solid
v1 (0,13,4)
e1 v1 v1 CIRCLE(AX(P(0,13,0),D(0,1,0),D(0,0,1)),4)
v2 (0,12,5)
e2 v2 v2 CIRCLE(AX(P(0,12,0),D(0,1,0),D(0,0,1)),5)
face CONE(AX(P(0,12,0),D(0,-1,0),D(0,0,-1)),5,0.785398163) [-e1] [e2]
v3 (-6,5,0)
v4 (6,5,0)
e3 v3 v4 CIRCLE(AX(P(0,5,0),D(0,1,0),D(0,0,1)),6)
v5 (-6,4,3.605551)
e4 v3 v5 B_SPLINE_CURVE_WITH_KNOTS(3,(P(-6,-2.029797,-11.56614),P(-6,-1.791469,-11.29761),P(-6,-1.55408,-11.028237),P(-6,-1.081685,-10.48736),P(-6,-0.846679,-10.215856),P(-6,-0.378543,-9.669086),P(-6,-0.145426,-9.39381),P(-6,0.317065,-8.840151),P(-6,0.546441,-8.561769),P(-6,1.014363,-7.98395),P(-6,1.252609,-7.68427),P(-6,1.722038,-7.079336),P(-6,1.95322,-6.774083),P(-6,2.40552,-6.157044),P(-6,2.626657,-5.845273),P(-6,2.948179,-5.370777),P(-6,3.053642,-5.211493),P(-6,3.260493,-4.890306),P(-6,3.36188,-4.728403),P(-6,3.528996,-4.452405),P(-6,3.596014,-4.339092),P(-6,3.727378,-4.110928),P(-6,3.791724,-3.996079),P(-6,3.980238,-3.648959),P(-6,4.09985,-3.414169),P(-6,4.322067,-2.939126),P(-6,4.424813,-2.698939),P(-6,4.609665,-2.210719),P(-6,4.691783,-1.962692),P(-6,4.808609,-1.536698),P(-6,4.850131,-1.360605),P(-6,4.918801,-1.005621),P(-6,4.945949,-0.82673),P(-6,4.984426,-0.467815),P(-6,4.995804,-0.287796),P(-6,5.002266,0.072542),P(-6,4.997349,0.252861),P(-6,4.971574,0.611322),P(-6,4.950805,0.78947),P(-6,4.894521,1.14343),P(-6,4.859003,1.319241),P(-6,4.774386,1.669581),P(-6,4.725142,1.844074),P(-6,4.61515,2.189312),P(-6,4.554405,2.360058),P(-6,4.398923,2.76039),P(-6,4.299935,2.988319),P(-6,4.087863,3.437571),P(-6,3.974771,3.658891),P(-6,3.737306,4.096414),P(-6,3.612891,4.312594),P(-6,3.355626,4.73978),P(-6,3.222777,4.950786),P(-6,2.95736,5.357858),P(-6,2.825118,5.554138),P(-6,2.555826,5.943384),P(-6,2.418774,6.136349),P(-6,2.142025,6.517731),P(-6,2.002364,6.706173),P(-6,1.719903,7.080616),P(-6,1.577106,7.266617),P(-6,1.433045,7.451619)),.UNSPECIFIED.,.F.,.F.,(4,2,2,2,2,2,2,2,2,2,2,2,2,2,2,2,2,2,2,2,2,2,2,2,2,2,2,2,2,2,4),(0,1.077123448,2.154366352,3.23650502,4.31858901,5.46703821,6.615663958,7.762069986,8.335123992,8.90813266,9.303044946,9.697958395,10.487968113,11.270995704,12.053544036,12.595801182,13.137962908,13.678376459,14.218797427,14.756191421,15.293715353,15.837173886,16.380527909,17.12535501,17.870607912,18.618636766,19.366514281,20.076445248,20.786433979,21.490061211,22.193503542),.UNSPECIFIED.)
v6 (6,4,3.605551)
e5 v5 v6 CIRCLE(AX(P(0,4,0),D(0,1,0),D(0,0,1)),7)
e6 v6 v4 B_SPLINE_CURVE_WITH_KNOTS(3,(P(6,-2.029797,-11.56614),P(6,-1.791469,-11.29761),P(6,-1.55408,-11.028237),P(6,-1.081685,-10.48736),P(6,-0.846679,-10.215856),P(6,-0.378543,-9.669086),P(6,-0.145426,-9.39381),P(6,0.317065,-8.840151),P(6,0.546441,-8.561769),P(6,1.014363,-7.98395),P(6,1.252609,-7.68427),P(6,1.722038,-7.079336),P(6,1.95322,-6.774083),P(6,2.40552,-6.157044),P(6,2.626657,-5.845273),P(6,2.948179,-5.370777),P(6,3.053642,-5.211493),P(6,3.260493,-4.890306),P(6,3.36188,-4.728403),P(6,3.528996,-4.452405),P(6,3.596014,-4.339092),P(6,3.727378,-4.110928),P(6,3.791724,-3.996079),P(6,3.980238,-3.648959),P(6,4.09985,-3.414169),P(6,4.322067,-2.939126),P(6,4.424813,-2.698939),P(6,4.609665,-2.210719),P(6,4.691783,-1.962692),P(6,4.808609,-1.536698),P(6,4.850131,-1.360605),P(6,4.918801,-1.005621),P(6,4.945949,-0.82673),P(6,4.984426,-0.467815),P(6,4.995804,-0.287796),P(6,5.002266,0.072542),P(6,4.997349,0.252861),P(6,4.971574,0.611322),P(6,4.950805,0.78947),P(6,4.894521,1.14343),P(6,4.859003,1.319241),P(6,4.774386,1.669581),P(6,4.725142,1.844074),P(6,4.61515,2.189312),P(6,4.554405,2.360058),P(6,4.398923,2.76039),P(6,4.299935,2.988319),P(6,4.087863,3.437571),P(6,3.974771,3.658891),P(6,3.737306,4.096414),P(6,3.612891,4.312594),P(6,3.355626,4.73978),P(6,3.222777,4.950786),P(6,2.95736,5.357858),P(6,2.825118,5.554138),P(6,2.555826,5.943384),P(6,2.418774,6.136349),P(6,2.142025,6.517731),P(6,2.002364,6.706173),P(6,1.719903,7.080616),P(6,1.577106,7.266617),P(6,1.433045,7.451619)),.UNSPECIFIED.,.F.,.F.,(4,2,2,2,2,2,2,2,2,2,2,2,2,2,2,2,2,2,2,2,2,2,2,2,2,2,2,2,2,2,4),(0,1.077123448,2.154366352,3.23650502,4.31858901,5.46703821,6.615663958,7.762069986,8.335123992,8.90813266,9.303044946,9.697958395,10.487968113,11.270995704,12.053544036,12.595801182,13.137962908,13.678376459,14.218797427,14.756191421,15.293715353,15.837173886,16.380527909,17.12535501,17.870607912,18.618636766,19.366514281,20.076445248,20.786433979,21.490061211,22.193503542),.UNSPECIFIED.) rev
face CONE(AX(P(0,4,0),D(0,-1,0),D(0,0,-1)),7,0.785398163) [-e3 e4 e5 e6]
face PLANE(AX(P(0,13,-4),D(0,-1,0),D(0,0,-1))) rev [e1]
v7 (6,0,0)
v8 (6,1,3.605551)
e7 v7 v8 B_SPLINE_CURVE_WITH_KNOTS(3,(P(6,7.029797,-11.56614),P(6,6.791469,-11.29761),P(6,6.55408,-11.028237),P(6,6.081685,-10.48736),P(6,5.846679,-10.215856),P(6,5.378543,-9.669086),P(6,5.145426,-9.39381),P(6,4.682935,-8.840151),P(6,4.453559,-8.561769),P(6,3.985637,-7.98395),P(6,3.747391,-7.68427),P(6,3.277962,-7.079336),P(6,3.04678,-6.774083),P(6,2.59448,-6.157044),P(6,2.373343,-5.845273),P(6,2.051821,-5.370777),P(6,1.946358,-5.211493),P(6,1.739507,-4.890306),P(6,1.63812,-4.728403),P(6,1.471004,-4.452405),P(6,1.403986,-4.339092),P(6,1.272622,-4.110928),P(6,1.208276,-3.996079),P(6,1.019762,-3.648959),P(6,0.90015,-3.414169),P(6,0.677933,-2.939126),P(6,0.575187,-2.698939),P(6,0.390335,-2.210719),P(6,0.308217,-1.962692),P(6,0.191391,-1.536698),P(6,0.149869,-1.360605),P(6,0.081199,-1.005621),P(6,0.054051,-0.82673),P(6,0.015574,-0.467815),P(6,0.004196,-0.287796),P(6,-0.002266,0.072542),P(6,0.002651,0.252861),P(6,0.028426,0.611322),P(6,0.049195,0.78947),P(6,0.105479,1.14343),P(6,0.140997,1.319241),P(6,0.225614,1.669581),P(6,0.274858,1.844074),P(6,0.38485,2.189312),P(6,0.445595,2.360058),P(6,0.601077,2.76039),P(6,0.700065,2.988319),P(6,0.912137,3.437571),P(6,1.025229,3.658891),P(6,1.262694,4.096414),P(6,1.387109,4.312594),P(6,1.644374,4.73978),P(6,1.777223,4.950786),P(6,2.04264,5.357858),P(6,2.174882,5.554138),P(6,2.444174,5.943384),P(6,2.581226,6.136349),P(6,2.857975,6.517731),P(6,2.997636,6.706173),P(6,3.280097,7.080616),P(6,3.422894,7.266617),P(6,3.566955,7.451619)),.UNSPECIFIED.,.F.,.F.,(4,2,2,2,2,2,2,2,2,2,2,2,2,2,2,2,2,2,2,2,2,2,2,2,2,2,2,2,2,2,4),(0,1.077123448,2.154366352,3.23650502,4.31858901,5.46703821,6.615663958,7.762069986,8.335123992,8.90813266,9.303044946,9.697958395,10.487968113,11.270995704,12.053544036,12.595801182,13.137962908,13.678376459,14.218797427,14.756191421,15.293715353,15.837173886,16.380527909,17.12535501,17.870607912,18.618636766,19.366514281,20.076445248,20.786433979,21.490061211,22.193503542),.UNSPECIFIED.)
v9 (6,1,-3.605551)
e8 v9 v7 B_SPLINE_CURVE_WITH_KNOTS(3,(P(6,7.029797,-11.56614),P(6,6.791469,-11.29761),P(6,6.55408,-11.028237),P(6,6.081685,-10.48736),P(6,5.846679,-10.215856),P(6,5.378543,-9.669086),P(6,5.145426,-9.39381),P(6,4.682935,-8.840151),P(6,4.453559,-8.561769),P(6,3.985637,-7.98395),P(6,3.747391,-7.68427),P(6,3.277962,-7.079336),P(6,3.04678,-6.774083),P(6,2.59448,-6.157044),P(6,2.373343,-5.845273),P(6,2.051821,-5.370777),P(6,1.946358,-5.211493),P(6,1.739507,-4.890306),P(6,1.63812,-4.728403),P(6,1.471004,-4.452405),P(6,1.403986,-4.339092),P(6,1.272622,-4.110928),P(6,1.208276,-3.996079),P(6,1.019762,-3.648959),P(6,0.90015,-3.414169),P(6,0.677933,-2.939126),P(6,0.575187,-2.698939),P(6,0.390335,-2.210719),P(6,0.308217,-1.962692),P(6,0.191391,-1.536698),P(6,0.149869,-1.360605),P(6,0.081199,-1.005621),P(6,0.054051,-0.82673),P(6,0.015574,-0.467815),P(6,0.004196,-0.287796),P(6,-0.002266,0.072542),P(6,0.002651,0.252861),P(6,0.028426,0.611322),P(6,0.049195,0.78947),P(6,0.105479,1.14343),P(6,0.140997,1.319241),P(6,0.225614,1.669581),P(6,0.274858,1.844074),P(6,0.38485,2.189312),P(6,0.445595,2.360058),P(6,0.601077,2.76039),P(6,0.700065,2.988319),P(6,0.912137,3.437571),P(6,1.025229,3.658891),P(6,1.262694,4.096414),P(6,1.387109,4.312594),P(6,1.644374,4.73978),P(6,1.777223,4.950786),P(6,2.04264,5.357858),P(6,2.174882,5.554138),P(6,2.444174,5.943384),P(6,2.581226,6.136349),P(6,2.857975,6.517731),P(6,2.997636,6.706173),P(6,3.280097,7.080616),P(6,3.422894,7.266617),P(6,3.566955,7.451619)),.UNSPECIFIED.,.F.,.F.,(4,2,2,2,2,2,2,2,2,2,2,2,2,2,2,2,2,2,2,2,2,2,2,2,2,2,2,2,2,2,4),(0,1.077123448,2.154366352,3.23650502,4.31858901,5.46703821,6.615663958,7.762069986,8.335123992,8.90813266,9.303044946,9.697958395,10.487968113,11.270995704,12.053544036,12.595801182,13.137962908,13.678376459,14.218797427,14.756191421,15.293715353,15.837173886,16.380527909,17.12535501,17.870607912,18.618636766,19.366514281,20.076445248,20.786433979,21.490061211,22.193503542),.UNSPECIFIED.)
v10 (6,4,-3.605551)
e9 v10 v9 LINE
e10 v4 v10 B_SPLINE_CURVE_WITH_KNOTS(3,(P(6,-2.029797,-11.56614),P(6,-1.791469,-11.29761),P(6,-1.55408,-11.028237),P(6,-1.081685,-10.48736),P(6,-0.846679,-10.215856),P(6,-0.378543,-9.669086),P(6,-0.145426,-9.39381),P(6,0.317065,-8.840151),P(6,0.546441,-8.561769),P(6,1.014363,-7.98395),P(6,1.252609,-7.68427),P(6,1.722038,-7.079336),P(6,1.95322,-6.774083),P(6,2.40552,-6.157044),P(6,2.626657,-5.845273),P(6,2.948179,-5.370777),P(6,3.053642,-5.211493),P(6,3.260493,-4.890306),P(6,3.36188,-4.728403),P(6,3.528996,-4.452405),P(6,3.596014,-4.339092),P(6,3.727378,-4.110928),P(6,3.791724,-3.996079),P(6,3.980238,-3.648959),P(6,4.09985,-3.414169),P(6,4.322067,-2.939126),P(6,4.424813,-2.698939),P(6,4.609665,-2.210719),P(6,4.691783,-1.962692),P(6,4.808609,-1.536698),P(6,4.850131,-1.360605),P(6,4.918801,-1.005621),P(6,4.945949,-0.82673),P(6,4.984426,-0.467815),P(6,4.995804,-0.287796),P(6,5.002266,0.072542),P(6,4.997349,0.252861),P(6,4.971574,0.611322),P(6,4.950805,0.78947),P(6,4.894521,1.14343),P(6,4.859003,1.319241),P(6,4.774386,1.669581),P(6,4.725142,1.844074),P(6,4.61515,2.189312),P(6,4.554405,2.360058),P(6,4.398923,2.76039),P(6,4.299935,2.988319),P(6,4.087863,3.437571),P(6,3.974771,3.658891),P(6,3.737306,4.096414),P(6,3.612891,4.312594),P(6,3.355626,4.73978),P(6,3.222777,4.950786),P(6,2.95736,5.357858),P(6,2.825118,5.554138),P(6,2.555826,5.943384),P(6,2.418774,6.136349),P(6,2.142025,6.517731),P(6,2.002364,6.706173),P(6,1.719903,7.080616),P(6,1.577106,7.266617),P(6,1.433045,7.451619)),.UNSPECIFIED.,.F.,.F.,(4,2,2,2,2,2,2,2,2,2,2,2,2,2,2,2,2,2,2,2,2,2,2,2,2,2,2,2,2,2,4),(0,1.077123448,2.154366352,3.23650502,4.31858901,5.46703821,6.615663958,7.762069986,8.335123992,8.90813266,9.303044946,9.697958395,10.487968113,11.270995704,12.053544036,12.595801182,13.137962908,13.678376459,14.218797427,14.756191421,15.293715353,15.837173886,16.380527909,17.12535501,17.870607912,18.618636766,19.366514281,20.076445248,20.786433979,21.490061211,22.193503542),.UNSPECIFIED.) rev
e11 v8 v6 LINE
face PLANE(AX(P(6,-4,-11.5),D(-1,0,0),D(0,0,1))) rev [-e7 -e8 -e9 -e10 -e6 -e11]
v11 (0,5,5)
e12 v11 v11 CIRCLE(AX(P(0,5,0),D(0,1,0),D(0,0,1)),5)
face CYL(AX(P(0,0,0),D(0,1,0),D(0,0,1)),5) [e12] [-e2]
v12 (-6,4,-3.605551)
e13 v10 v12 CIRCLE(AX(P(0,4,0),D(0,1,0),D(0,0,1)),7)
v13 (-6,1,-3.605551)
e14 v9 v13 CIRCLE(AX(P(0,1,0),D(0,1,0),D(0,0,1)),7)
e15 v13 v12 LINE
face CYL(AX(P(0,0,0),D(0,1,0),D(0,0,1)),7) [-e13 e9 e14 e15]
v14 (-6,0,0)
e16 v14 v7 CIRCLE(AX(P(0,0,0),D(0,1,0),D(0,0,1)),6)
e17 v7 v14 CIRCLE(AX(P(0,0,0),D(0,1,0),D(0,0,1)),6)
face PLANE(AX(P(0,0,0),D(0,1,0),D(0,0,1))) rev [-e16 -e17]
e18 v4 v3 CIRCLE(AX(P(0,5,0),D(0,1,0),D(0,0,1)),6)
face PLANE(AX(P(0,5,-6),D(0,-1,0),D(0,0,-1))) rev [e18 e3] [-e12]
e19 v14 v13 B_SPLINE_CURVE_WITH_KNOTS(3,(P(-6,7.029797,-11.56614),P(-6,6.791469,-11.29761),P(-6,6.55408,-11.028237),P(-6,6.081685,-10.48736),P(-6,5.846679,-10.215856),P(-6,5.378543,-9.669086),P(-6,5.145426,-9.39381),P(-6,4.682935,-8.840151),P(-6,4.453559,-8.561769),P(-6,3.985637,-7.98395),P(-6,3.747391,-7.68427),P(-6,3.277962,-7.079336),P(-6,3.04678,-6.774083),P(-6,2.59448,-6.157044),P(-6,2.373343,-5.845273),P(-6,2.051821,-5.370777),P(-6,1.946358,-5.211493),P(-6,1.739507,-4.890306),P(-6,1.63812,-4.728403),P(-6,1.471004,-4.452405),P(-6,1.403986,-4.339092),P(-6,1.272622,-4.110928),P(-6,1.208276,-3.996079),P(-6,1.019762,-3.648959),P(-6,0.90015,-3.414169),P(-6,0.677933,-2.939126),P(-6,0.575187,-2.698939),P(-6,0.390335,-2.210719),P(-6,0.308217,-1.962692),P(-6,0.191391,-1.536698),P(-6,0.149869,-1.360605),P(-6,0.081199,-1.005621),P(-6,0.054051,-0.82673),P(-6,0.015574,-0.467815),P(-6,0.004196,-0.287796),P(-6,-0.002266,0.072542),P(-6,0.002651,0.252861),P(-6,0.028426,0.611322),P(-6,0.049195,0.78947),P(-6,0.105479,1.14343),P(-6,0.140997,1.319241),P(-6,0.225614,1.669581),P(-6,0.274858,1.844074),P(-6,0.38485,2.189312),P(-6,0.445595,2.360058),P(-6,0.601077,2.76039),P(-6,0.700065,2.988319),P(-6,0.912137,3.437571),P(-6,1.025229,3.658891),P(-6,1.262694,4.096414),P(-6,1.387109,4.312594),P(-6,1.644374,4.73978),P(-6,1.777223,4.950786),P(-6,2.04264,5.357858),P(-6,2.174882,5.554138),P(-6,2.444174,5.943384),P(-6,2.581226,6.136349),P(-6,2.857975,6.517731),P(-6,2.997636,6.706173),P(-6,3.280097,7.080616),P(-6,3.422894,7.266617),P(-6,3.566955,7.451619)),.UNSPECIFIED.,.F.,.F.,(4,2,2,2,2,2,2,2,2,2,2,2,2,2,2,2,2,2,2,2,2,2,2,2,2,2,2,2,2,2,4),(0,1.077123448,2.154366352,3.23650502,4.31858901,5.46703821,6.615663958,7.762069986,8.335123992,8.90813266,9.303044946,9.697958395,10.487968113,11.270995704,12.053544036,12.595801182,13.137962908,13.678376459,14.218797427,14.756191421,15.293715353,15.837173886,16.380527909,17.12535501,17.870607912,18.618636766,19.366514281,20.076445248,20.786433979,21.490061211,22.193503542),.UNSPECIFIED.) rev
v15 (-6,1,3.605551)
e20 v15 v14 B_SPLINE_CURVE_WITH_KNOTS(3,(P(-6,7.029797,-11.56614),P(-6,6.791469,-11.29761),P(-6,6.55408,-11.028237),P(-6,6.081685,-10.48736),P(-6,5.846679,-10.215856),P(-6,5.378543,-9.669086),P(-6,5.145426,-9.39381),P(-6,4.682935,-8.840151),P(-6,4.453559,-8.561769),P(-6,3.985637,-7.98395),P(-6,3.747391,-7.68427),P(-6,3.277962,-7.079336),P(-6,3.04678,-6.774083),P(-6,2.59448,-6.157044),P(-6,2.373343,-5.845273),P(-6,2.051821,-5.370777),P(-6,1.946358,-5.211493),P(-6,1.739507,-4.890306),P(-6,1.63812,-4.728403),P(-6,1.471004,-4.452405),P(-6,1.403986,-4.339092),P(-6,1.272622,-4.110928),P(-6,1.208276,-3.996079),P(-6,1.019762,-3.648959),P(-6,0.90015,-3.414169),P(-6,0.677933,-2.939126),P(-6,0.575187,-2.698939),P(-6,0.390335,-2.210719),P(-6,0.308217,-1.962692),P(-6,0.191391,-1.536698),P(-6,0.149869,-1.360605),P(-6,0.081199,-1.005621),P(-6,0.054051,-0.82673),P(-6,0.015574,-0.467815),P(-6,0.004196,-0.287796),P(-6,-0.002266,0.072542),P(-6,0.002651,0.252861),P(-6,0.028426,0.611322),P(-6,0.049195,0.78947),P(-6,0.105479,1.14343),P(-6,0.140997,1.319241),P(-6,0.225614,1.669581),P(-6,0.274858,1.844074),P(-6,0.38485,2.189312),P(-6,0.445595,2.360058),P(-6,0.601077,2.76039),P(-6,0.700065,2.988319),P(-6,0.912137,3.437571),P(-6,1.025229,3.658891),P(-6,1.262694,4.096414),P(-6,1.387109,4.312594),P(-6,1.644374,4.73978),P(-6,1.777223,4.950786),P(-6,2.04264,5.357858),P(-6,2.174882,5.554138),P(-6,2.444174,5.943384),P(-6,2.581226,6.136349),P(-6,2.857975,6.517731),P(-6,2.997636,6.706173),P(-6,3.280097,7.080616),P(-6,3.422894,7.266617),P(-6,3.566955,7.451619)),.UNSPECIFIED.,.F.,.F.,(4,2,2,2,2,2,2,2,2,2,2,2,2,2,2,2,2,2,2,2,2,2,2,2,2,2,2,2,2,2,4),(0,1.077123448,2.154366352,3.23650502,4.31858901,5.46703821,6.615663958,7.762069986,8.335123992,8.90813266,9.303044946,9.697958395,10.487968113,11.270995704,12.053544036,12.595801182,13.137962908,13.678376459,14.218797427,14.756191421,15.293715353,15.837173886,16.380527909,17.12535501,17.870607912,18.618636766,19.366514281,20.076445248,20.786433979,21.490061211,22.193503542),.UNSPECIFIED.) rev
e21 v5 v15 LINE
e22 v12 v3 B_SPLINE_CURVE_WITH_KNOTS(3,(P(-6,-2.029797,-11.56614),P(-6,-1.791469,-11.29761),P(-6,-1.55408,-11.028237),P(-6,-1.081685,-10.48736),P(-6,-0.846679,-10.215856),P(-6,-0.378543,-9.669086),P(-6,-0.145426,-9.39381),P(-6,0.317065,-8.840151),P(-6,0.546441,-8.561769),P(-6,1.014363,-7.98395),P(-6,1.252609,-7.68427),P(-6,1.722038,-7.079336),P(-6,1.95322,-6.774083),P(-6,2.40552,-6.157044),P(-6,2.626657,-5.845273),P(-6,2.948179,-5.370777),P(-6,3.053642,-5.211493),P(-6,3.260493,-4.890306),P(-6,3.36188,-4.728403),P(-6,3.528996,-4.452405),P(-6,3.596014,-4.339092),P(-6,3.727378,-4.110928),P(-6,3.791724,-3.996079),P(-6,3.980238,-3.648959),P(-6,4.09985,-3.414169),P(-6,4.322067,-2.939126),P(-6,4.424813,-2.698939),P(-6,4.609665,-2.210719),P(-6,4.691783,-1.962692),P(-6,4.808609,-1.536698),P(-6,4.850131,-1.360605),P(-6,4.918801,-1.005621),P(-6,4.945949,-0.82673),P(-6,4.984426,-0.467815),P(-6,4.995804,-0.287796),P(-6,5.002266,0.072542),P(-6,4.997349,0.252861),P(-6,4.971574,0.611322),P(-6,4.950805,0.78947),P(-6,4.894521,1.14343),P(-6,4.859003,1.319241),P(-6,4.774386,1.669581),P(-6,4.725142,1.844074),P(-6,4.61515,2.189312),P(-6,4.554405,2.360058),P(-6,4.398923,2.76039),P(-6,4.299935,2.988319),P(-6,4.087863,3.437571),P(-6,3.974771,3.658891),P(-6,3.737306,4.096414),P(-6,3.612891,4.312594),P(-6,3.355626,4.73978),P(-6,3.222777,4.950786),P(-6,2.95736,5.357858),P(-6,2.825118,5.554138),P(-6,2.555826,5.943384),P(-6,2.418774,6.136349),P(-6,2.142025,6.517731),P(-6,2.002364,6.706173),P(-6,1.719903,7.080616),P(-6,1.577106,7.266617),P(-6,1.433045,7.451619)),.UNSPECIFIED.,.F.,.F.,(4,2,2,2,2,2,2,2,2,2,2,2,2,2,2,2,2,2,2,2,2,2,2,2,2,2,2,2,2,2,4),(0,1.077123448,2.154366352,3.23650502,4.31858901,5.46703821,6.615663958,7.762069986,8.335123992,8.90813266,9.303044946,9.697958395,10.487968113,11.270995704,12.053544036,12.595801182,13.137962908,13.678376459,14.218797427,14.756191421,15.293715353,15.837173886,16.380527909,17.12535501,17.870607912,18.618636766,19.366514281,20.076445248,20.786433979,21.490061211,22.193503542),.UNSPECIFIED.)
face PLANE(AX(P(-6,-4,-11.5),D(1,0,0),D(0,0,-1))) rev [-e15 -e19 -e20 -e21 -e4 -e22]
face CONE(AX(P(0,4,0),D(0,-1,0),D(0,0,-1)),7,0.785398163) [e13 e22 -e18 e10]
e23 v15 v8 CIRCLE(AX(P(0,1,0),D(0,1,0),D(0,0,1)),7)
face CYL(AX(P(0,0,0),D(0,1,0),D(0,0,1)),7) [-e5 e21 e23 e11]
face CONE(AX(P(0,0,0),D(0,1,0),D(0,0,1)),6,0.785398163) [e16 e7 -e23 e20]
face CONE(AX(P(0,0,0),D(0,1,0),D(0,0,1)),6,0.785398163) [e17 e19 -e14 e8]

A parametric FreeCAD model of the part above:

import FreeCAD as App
import Part
import Sketcher

V = App.Vector
Q = App.Units.Quantity


def add_polygon(sketch, points):
    """Adds a closed chain of lines whose ends are joined by coincident constraints."""
    first, n = sketch.GeometryCount, len(points)
    for a, b in zip(points, points[1:] + points[:1]):
        sketch.addGeometry(Part.LineSegment(App.Vector(*a, 0), App.Vector(*b, 0)), False)
    for i in range(n):
        sketch.addConstraint(Sketcher.Constraint("Coincident", first + i, 2, first + (i + 1) % n, 1))

doc = App.newDocument("Part")
body = doc.addObject("PartDesign::Body", "Body")

sketch1 = body.newObject("Sketcher::SketchObject", "Sketch")
sketch1.AttachmentSupport = (doc.getObject("YZ_Plane"), [""])
sketch1.MapMode = "FlatFace"
add_polygon(sketch1, [(0, 0), (0, -6), (1, -7), (4, -7), (5, -6), (5, -5), (12, -5), (13, -4), (13, 0)])
sketch1.addConstraint([
    Sketcher.Constraint("Vertical", 0),
    Sketcher.Constraint("Horizontal", 2),
    Sketcher.Constraint("Vertical", 4),
    Sketcher.Constraint("Horizontal", 5),
    Sketcher.Constraint("Vertical", 7),
    Sketcher.Constraint("Horizontal", 8),
    Sketcher.Constraint("Coincident", 8, 2, -1, 1),
    Sketcher.Constraint("Perpendicular", 1, 3),
    Sketcher.Constraint("Parallel", 3, 6),
    Sketcher.Constraint("Horizontal", 0, 2, 3, 2),
    Sketcher.Constraint("Equal", 1, 3),
    Sketcher.Constraint("Equal", 3, 6),
    Sketcher.Constraint("DistanceX", 2, 1, 2, 2, Q("3 mm")),
    Sketcher.Constraint("DistanceX", 5, 1, 5, 2, Q("7 mm")),
    Sketcher.Constraint("DistanceX", 8, 2, 8, 1, Q("13 mm")),
    Sketcher.Constraint("DistanceY", 0, 2, 0, 1, Q("6 mm")),
    Sketcher.Constraint("DistanceY", 4, 1, 4, 2, Q("1 mm")),
])
revolution = body.newObject("PartDesign::Revolution", "Revolution")
revolution.Profile = sketch1
revolution.ReferenceAxis = (sketch1, ["H_Axis"])
revolution.Angle = 360

sketch2 = body.newObject("Sketcher::SketchObject", "Sketch001")
sketch2.AttachmentSupport = (doc.getObject("XZ_Plane"), [""])
sketch2.MapMode = "FlatFace"
sketch2.AttachmentOffset = App.Placement(V(0, 0, -5), App.Rotation())
add_polygon(sketch2, [(6, -12), (6, 12), (11, 12), (11, -12)])
add_polygon(sketch2, [(-11, -12), (-11, 12), (-6, 12), (-6, -12)])
sketch2.addConstraint([
    Sketcher.Constraint("Vertical", 0),
    Sketcher.Constraint("Horizontal", 1),
    Sketcher.Constraint("Vertical", 2),
    Sketcher.Constraint("Horizontal", 3),
    Sketcher.Constraint("Vertical", 4),
    Sketcher.Constraint("Horizontal", 5),
    Sketcher.Constraint("Vertical", 6),
    Sketcher.Constraint("Horizontal", 7),
    Sketcher.Constraint("Symmetric", 2, 2, 4, 2, -1, 1),
    Sketcher.Constraint("Symmetric", 0, 2, 6, 2, -1, 1),
    Sketcher.Constraint("Horizontal", 1, 2, 4, 2),
    Sketcher.Constraint("DistanceX", 1, 1, 1, 2, Q("5 mm")),
    Sketcher.Constraint("DistanceY", 0, 1, 0, 2, Q("23 mm")),
    Sketcher.Constraint("DistanceX", -1, 1, 0, 2, Q("6 mm")),
])
pocket1 = body.newObject("PartDesign::Pocket", "Pocket")
pocket1.Profile = sketch2
pocket1.Length = 9
pocket1.Reversed = True

doc.recompute()
